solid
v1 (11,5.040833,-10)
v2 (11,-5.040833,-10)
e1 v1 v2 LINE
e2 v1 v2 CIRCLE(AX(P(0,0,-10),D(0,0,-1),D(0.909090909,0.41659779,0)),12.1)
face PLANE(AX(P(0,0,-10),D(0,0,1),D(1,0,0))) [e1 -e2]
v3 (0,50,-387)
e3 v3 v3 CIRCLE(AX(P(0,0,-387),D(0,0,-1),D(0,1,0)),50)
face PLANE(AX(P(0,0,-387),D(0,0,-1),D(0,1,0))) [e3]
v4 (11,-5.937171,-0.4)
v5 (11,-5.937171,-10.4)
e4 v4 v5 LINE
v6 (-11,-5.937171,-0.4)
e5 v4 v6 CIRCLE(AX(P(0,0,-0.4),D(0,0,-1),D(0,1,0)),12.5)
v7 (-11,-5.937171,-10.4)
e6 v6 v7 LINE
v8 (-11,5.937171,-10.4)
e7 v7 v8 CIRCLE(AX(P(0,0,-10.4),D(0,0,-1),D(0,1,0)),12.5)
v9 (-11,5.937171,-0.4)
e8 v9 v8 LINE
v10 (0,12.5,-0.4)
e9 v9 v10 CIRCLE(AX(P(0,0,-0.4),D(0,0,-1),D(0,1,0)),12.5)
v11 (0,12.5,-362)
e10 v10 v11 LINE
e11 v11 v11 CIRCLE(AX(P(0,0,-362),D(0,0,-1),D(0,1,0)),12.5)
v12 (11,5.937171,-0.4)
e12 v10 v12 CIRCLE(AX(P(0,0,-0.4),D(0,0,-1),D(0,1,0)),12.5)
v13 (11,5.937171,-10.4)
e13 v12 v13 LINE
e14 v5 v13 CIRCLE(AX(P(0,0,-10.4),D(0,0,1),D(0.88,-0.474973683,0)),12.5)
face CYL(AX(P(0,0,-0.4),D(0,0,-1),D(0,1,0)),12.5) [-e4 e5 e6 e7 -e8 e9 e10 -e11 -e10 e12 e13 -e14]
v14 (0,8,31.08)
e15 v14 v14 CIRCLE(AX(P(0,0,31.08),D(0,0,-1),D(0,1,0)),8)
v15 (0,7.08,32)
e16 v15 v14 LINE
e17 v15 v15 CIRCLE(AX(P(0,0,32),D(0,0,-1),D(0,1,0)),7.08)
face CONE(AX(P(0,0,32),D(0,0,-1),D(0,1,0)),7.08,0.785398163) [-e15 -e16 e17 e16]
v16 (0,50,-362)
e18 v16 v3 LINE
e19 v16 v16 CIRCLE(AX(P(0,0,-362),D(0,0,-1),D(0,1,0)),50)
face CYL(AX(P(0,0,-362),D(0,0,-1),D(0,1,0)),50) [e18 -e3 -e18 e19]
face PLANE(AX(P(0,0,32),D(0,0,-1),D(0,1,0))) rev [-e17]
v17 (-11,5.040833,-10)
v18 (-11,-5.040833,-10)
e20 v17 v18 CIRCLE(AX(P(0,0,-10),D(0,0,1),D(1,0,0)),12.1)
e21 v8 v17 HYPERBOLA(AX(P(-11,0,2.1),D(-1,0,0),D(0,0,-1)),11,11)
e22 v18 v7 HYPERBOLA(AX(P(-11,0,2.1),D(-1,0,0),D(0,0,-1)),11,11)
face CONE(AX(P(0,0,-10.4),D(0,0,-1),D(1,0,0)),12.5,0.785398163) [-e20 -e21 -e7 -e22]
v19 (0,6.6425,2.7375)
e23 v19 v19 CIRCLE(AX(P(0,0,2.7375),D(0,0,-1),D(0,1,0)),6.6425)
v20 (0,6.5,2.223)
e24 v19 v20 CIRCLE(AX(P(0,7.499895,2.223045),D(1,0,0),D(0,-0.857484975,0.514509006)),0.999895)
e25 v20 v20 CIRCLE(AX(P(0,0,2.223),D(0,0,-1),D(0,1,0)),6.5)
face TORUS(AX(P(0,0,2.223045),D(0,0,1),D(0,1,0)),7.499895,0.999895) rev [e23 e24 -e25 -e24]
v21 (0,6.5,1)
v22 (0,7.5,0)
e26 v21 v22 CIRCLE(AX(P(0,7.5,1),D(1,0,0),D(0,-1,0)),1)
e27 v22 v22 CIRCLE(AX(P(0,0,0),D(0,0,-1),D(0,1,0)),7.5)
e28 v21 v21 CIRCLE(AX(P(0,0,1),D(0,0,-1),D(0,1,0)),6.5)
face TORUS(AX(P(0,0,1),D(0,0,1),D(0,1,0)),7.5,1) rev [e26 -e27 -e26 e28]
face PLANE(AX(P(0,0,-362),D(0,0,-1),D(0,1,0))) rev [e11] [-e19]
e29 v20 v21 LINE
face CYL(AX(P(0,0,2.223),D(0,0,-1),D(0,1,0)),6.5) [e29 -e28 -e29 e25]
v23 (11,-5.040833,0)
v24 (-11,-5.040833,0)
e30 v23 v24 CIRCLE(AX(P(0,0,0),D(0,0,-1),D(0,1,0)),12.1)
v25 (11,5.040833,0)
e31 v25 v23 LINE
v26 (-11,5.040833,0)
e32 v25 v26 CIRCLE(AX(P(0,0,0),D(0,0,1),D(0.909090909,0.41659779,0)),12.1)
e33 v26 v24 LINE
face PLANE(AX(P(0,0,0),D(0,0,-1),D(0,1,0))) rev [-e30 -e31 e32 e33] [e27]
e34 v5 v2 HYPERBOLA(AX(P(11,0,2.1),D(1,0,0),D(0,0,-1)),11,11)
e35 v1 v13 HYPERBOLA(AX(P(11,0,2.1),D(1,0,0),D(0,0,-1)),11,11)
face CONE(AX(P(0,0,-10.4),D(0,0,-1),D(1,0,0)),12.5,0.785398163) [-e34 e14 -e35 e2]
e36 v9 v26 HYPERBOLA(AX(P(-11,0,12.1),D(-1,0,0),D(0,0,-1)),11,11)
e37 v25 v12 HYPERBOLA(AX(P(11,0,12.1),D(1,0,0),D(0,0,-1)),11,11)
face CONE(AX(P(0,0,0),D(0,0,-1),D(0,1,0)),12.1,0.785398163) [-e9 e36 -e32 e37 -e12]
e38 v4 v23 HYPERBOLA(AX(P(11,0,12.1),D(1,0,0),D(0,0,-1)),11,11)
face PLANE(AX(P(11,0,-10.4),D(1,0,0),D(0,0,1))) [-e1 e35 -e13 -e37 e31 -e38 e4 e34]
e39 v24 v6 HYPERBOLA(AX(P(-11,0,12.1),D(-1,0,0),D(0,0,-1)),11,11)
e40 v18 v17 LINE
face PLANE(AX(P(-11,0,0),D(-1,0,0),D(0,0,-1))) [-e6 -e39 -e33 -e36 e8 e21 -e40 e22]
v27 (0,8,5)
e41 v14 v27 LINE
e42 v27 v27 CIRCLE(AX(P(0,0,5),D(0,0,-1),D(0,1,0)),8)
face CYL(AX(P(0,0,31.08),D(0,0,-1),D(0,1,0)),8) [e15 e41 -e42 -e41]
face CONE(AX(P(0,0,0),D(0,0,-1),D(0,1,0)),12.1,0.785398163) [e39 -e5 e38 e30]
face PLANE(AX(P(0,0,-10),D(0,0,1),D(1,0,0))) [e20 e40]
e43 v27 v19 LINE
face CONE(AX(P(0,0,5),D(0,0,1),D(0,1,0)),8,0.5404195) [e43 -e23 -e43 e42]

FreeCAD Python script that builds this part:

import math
import FreeCAD as App
import Part
import Sketcher
from FreeCAD import Vector
Q = App.Units.Quantity

doc = App.newDocument("Part")
body = doc.addObject("PartDesign::Body", "Body")

sketch1 = doc.addObject("Sketcher::SketchObject", "Sketch")
body.addObject(sketch1)
sketch1.AttachmentSupport = (doc.YZ_Plane, [""])
sketch1.MapMode = "FlatFace"
sketch1.addGeometry([
    Part.LineSegment(Vector(0, 0, 0), Vector(0, -387, 0)),
    Part.LineSegment(Vector(0, -387, 0), Vector(50, -387, 0)),
    Part.LineSegment(Vector(50, -387, 0), Vector(50, -362, 0)),
    Part.LineSegment(Vector(50, -362, 0), Vector(12.5, -362, 0)),
    Part.LineSegment(Vector(12.5, -362, 0), Vector(12.5, -0.4, 0)),
    Part.LineSegment(Vector(12.5, -0.4, 0), Vector(12.1, 0, 0)),
    Part.LineSegment(Vector(12.1, 0, 0), Vector(0, 0, 0)),
], False)
sketch1.addConstraint([
    Sketcher.Constraint("Coincident", 0, 2, 1, 1),
    Sketcher.Constraint("Coincident", 1, 2, 2, 1),
    Sketcher.Constraint("Coincident", 2, 2, 3, 1),
    Sketcher.Constraint("Coincident", 3, 2, 4, 1),
    Sketcher.Constraint("Coincident", 4, 2, 5, 1),
    Sketcher.Constraint("Coincident", 5, 2, 6, 1),
    Sketcher.Constraint("Coincident", 6, 2, 0, 1),
    Sketcher.Constraint("Vertical", 0),
    Sketcher.Constraint("Horizontal", 1),
    Sketcher.Constraint("Vertical", 2),
    Sketcher.Constraint("Horizontal", 3),
    Sketcher.Constraint("Vertical", 4),
    Sketcher.Constraint("Horizontal", 6),
    Sketcher.Constraint("Coincident", 6, 2, -1, 1),
    Sketcher.Constraint("DistanceX", 1, 1, 1, 2, 50.0),
    Sketcher.Constraint("DistanceY", 0, 2, 0, 1, 387.0),
    Sketcher.Constraint("DistanceY", 2, 1, 2, 2, 25.0),
    Sketcher.Constraint("Angle", 5, Q("135 deg")),
    Sketcher.Constraint("DistanceX", 3, 2, 3, 1, 37.5),
    Sketcher.Constraint("DistanceX", 6, 2, 6, 1, 12.1),
])
revolution = doc.addObject("PartDesign::Revolution", "Revolution")
body.addObject(revolution)
revolution.Profile = sketch1
revolution.ReferenceAxis = (sketch1, ["V_Axis"])
revolution.Angle = 360

sketch2 = doc.addObject("Sketcher::SketchObject", "Sketch001")
body.addObject(sketch2)
sketch2.AttachmentSupport = (doc.YZ_Plane, [""])
sketch2.MapMode = "FlatFace"
sketch2.addGeometry([
    Part.LineSegment(Vector(0, 32, 0), Vector(0, -1, 0)),
    Part.LineSegment(Vector(0, -1, 0), Vector(8, -1, 0)),
    Part.LineSegment(Vector(8, -1, 0), Vector(8, 0, 0)),
    Part.LineSegment(Vector(8, 0, 0), Vector(7.5, 0, 0)),
    Part.ArcOfCircle(Part.Circle(Vector(7.5, 1, 0), Vector(0, 0, 1), 1), math.radians(180), math.radians(270)),
    Part.LineSegment(Vector(6.5, 1, 0), Vector(6.5, 2.2, 0)),
    Part.ArcOfCircle(Part.Circle(Vector(7.5, 2.2, 0), Vector(0, 0, 1), 1), math.radians(149), math.radians(180)),
    Part.LineSegment(Vector(6.6, 2.7, 0), Vector(8, 5, 0)),
    Part.LineSegment(Vector(8, 5, 0), Vector(8, 31.1, 0)),
    Part.LineSegment(Vector(8, 31.1, 0), Vector(7.1, 32, 0)),
    Part.LineSegment(Vector(7.1, 32, 0), Vector(0, 32, 0)),
], False)
sketch2.addConstraint([
    Sketcher.Constraint("Coincident", 0, 2, 1, 1),
    Sketcher.Constraint("Coincident", 1, 2, 2, 1),
    Sketcher.Constraint("Coincident", 2, 2, 3, 1),
    Sketcher.Constraint("Tangent", 3, 2, 4, 2),
    Sketcher.Constraint("Tangent", 4, 1, 5, 1),
    Sketcher.Constraint("Tangent", 5, 2, 6, 2),
    Sketcher.Constraint("Tangent", 6, 1, 7, 1),
    Sketcher.Constraint("Coincident", 7, 2, 8, 1),
    Sketcher.Constraint("Coincident", 8, 2, 9, 1),
    Sketcher.Constraint("Coincident", 9, 2, 10, 1),
    Sketcher.Constraint("Coincident", 10, 2, 0, 1),
    Sketcher.Constraint("Vertical", 0),
    Sketcher.Constraint("Horizontal", 1),
    Sketcher.Constraint("Vertical", 2),
    Sketcher.Constraint("Horizontal", 3),
    Sketcher.Constraint("Vertical", 5),
    Sketcher.Constraint("Vertical", 8),
    Sketcher.Constraint("Horizontal", 10),
    Sketcher.Constraint("Equal", 4, 6),
    Sketcher.Constraint("PointOnObject", 0, 2, -2),
    Sketcher.Constraint("PointOnObject", 2, 2, -1),
    Sketcher.Constraint("Vertical", 2, 2, 7, 2),
    Sketcher.Constraint("Radius", 4, 1.0),
    Sketcher.Constraint("DistanceX", 1, 1, 1, 2, 8.0),
    Sketcher.Constraint("DistanceY", 0, 2, 0, 1, 33.0),
    Sketcher.Constraint("DistanceY", 2, 1, 2, 2, 1.0),
    Sketcher.Constraint("Angle", 9, Q("135 deg")),
    Sketcher.Constraint("DistanceX", 3, 2, 3, 1, 0.5),
    Sketcher.Constraint("DistanceY", -1, 1, 7, 2, 5.0),
    Sketcher.Constraint("DistanceX", 10, 2, 10, 1, 7.08),
    Sketcher.Constraint("DistanceY", 5, 1, 5, 2, 1.223),
])
revolution2 = doc.addObject("PartDesign::Revolution", "Revolution001")
body.addObject(revolution2)
revolution2.Profile = sketch2
revolution2.ReferenceAxis = (sketch2, ["V_Axis"])
revolution2.Angle = 360

sketch3 = doc.addObject("Sketcher::SketchObject", "Sketch002")
body.addObject(sketch3)
sketch3.AttachmentSupport = (doc.XZ_Plane, [""])
sketch3.MapMode = "FlatFace"
sketch3.addGeometry([
    Part.LineSegment(Vector(-11, -10.4, 0), Vector(-15.5, -10.4, 0)),
    Part.LineSegment(Vector(-15.5, -10.4, 0), Vector(-15.5, 36.6, 0)),
    Part.LineSegment(Vector(-15.5, 36.6, 0), Vector(15.5, 36.6, 0)),
    Part.LineSegment(Vector(15.5, 36.6, 0), Vector(15.5, -10.4, 0)),
    Part.LineSegment(Vector(15.5, -10.4, 0), Vector(11, -10.4, 0)),
    Part.LineSegment(Vector(11, -10.4, 0), Vector(11, 0, 0)),
    Part.LineSegment(Vector(11, 0, 0), Vector(14.5, 0, 0)),
    Part.LineSegment(Vector(14.5, 0, 0), Vector(14.5, 35.6, 0)),
    Part.LineSegment(Vector(14.5, 35.6, 0), Vector(-14.5, 35.6, 0)),
    Part.LineSegment(Vector(-14.5, 35.6, 0), Vector(-14.5, 0, 0)),
    Part.LineSegment(Vector(-14.5, 0, 0), Vector(-11, 0, 0)),
    Part.LineSegment(Vector(-11, 0, 0), Vector(-11, -10.4, 0)),
], False)
sketch3.addConstraint([
    Sketcher.Constraint("Coincident", 0, 2, 1, 1),
    Sketcher.Constraint("Coincident", 1, 2, 2, 1),
    Sketcher.Constraint("Coincident", 2, 2, 3, 1),
    Sketcher.Constraint("Coincident", 3, 2, 4, 1),
    Sketcher.Constraint("Coincident", 4, 2, 5, 1),
    Sketcher.Constraint("Coincident", 5, 2, 6, 1),
    Sketcher.Constraint("Coincident", 6, 2, 7, 1),
    Sketcher.Constraint("Coincident", 7, 2, 8, 1),
    Sketcher.Constraint("Coincident", 8, 2, 9, 1),
    Sketcher.Constraint("Coincident", 9, 2, 10, 1),
    Sketcher.Constraint("Coincident", 10, 2, 11, 1),
    Sketcher.Constraint("Coincident", 11, 2, 0, 1),
    Sketcher.Constraint("Horizontal", 0),
    Sketcher.Constraint("Vertical", 1),
    Sketcher.Constraint("Horizontal", 2),
    Sketcher.Constraint("Vertical", 3),
    Sketcher.Constraint("Horizontal", 4),
    Sketcher.Constraint("Vertical", 5),
    Sketcher.Constraint("Horizontal", 6),
    Sketcher.Constraint("Vertical", 7),
    Sketcher.Constraint("Horizontal", 8),
    Sketcher.Constraint("Vertical", 9),
    Sketcher.Constraint("Horizontal", 10),
    Sketcher.Constraint("Vertical", 11),
    Sketcher.Constraint("Symmetric", 6, 2, 9, 2, -1, 1),
    Sketcher.Constraint("Symmetric", 0, 2, 3, 2, -2),
    Sketcher.Constraint("Symmetric", 5, 2, 10, 2, -2),
    Sketcher.Constraint("DistanceX", 2, 1, 2, 2, 31.0),
    Sketcher.Constraint("DistanceX", 8, 2, 8, 1, 29.0),
    Sketcher.Constraint("DistanceY", 1, 1, 1, 2, 47.0),
    Sketcher.Constraint("DistanceX", 0, 2, 0, 1, 4.5),
    Sketcher.Constraint("DistanceY", 5, 1, 5, 2, 10.4),
    Sketcher.Constraint("DistanceY", 7, 1, 7, 2, 35.6),
])
pocket1 = doc.addObject("PartDesign::Pocket", "Pocket")
body.addObject(pocket1)
pocket1.Profile = sketch3
pocket1.Length = 25
pocket1.Midplane = True

sketch4 = doc.addObject("Sketcher::SketchObject", "Sketch003")
body.addObject(sketch4)
sketch4.AttachmentSupport = (doc.XZ_Plane, [""])
sketch4.MapMode = "FlatFace"
sketch4.addGeometry([
    Part.LineSegment(Vector(0, -10.4, 0), Vector(0, -10, 0)),
    Part.LineSegment(Vector(0, -10, 0), Vector(12.1, -10, 0)),
    Part.LineSegment(Vector(12.1, -10, 0), Vector(12.5, -10.4, 0)),
    Part.LineSegment(Vector(12.5, -10.4, 0), Vector(0, -10.4, 0)),
], False)
sketch4.addConstraint([
    Sketcher.Constraint("Coincident", 0, 2, 1, 1),
    Sketcher.Constraint("Coincident", 1, 2, 2, 1),
    Sketcher.Constraint("Coincident", 2, 2, 3, 1),
    Sketcher.Constraint("Coincident", 3, 2, 0, 1),
    Sketcher.Constraint("Vertical", 0),
    Sketcher.Constraint("Horizontal", 1),
    Sketcher.Constraint("Horizontal", 3),
    Sketcher.Constraint("PointOnObject", 0, 2, -2),
    Sketcher.Constraint("Angle", 2, Q("-45 deg")),
    Sketcher.Constraint("DistanceX", 1, 1, 1, 2, 12.1),
    Sketcher.Constraint("DistanceX", 3, 2, 3, 1, 12.5),
    Sketcher.Constraint("DistanceY", 0, 2, -1, 1, 10.0),
])
revolution3 = doc.addObject("PartDesign::Revolution", "Revolution002")
body.addObject(revolution3)
revolution3.Profile = sketch4
revolution3.ReferenceAxis = (sketch4, ["V_Axis"])
revolution3.Angle = 360

doc.recompute()
